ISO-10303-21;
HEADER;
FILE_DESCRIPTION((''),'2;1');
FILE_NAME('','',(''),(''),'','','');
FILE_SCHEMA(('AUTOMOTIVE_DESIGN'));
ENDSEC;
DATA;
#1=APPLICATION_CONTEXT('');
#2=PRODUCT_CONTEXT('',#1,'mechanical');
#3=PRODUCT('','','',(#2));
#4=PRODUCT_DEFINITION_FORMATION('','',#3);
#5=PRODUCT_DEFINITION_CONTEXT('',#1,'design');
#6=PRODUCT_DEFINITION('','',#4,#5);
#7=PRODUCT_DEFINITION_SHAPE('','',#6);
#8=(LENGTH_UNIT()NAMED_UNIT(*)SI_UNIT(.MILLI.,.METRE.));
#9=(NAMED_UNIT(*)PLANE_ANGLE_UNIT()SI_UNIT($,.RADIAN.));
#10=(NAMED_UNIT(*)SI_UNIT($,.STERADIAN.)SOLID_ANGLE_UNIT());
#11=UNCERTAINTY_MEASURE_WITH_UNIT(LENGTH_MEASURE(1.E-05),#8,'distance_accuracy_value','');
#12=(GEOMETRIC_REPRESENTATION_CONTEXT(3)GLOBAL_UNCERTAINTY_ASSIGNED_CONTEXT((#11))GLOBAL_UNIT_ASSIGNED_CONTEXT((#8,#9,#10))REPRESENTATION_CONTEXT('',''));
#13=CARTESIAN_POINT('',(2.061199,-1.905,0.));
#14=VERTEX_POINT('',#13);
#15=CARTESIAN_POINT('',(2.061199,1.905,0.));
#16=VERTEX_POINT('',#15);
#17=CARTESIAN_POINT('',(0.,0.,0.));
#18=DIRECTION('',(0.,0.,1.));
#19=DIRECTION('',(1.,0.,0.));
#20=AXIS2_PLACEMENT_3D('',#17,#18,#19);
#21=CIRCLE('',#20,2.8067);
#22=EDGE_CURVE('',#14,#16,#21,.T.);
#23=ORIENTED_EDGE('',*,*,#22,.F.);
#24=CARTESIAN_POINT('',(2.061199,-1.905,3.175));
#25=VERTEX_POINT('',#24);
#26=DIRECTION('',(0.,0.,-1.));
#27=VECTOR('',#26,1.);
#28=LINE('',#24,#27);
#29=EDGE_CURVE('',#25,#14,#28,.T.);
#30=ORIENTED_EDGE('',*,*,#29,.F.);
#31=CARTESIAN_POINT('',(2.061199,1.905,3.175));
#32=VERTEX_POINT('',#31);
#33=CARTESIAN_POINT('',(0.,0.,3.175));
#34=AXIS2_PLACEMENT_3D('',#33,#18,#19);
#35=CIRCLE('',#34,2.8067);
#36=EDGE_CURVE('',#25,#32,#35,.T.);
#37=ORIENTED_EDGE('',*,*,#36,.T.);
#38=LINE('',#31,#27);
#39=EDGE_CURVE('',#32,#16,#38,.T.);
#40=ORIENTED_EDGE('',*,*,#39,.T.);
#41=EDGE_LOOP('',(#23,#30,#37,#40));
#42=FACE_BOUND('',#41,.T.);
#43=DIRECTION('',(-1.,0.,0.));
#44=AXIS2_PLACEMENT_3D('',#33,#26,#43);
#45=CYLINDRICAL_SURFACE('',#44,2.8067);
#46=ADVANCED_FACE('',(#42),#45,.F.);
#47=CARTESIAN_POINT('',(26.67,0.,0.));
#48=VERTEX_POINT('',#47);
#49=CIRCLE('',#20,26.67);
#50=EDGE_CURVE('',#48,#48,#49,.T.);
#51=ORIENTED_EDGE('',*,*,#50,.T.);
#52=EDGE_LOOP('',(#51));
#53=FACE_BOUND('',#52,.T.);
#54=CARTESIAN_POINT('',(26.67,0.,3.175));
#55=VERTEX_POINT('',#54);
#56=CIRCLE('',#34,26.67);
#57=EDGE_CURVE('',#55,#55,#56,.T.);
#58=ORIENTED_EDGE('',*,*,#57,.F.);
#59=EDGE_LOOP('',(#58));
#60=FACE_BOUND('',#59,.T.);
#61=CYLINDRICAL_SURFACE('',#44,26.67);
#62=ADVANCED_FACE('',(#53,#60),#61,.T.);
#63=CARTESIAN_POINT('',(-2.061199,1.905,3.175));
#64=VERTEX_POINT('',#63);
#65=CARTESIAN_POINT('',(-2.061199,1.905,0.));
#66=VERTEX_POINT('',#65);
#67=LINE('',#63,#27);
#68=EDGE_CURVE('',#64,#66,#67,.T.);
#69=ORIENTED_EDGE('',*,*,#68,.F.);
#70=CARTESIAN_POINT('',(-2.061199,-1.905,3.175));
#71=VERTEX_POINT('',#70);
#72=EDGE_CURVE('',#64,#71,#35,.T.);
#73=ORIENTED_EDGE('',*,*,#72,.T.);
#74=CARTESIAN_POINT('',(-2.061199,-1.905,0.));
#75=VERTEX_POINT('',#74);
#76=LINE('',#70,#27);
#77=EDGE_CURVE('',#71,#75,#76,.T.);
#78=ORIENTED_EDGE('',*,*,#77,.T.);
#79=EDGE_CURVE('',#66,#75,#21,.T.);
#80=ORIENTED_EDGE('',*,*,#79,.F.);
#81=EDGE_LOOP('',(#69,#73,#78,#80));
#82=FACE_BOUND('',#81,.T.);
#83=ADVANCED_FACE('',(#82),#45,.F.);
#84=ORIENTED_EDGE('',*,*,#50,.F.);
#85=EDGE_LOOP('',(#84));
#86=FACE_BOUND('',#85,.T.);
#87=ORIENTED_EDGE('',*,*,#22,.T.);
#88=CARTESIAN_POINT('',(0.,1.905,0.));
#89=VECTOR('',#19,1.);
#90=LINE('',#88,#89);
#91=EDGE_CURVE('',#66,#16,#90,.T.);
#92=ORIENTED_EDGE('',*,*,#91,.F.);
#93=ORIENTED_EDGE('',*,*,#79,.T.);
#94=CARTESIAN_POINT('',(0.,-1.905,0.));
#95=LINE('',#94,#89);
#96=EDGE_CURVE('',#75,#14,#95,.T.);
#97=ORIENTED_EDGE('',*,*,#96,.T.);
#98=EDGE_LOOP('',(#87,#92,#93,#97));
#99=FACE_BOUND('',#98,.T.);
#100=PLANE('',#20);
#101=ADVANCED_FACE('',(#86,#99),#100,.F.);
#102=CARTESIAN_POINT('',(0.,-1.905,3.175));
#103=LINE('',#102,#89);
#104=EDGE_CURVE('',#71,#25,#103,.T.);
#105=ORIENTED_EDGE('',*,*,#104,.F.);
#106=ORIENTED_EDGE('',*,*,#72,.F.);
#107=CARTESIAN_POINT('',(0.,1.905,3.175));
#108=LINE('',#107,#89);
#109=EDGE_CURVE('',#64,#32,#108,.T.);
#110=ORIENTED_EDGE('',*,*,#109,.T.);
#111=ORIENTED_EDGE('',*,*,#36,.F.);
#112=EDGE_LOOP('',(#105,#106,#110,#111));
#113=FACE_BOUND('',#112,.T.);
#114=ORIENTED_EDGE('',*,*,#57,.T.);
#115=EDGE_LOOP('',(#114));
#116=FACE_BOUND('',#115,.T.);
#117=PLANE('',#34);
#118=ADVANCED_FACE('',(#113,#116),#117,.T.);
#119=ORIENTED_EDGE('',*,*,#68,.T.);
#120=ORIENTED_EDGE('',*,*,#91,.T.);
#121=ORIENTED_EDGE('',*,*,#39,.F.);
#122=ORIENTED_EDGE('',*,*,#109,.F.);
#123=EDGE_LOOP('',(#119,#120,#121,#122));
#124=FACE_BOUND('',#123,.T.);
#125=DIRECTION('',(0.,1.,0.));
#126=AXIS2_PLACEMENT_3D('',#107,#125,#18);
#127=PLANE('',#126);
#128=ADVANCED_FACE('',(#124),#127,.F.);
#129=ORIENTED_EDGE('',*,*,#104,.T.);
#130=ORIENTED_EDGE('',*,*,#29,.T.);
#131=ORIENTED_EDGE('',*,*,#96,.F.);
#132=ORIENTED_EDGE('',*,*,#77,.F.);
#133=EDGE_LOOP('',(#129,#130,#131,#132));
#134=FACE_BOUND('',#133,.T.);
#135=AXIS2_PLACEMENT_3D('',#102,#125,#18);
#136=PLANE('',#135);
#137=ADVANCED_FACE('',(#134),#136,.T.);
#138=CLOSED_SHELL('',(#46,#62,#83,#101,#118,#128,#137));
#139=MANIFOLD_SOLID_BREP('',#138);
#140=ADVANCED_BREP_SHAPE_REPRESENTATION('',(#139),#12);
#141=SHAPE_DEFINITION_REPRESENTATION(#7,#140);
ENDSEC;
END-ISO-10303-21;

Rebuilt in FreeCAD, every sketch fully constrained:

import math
import FreeCAD as App
import Part
import Sketcher

V = App.Vector
Q = App.Units.Quantity

doc = App.newDocument("Part")
body = doc.addObject("PartDesign::Body", "Body")

sketch1 = body.newObject("Sketcher::SketchObject", "Sketch")
sketch1.AttachmentSupport = (doc.getObject("XY_Plane"), [""])
sketch1.MapMode = "FlatFace"
sketch1.addGeometry(Part.Circle(V(0, 0, 0), V(0, 0, 1), 26.7), False)
sketch1.addGeometry(Part.ArcOfCircle(Part.Circle(V(0, 0, 0), V(0, 0, 1), 2.8), math.radians(137), math.radians(223)), False)
sketch1.addGeometry(Part.LineSegment(V(-2.1, 1.9, 0), V(2.1, 1.9, 0)), False)
sketch1.addGeometry(Part.ArcOfCircle(Part.Circle(V(0, 0, 0), V(0, 0, 1), 2.8), math.radians(-43), math.radians(43)), False)
sketch1.addGeometry(Part.LineSegment(V(2.1, -1.9, 0), V(-2.1, -1.9, 0)), False)
sketch1.addConstraint(Sketcher.Constraint("Coincident", 1, 1, 2, 1))
sketch1.addConstraint(Sketcher.Constraint("Coincident", 2, 2, 3, 2))
sketch1.addConstraint(Sketcher.Constraint("Coincident", 3, 1, 4, 1))
sketch1.addConstraint(Sketcher.Constraint("Coincident", 4, 2, 1, 2))
sketch1.addConstraint(Sketcher.Constraint("Horizontal", 2))
sketch1.addConstraint(Sketcher.Constraint("Horizontal", 4))
sketch1.addConstraint(Sketcher.Constraint("Coincident", 0, 3, -1, 1))
sketch1.addConstraint(Sketcher.Constraint("Coincident", 1, 3, -1, 1))
sketch1.addConstraint(Sketcher.Constraint("Coincident", 3, 3, -1, 1))
sketch1.addConstraint(Sketcher.Constraint("Equal", 1, 3))
sketch1.addConstraint(Sketcher.Constraint("Vertical", 2, 2, 3, 1))
sketch1.addConstraint(Sketcher.Constraint("Diameter", 0, Q("2.1 in")))
sketch1.addConstraint(Sketcher.Constraint("Radius", 1, Q("0.1105 in")))
sketch1.addConstraint(Sketcher.Constraint("DistanceY", 3, 1, 2, 2, Q("0.15 in")))
pad1 = body.newObject("PartDesign::Pad", "Pad")
pad1.Profile = sketch1
pad1.Length = Q("0.125 in")

doc.recompute()
